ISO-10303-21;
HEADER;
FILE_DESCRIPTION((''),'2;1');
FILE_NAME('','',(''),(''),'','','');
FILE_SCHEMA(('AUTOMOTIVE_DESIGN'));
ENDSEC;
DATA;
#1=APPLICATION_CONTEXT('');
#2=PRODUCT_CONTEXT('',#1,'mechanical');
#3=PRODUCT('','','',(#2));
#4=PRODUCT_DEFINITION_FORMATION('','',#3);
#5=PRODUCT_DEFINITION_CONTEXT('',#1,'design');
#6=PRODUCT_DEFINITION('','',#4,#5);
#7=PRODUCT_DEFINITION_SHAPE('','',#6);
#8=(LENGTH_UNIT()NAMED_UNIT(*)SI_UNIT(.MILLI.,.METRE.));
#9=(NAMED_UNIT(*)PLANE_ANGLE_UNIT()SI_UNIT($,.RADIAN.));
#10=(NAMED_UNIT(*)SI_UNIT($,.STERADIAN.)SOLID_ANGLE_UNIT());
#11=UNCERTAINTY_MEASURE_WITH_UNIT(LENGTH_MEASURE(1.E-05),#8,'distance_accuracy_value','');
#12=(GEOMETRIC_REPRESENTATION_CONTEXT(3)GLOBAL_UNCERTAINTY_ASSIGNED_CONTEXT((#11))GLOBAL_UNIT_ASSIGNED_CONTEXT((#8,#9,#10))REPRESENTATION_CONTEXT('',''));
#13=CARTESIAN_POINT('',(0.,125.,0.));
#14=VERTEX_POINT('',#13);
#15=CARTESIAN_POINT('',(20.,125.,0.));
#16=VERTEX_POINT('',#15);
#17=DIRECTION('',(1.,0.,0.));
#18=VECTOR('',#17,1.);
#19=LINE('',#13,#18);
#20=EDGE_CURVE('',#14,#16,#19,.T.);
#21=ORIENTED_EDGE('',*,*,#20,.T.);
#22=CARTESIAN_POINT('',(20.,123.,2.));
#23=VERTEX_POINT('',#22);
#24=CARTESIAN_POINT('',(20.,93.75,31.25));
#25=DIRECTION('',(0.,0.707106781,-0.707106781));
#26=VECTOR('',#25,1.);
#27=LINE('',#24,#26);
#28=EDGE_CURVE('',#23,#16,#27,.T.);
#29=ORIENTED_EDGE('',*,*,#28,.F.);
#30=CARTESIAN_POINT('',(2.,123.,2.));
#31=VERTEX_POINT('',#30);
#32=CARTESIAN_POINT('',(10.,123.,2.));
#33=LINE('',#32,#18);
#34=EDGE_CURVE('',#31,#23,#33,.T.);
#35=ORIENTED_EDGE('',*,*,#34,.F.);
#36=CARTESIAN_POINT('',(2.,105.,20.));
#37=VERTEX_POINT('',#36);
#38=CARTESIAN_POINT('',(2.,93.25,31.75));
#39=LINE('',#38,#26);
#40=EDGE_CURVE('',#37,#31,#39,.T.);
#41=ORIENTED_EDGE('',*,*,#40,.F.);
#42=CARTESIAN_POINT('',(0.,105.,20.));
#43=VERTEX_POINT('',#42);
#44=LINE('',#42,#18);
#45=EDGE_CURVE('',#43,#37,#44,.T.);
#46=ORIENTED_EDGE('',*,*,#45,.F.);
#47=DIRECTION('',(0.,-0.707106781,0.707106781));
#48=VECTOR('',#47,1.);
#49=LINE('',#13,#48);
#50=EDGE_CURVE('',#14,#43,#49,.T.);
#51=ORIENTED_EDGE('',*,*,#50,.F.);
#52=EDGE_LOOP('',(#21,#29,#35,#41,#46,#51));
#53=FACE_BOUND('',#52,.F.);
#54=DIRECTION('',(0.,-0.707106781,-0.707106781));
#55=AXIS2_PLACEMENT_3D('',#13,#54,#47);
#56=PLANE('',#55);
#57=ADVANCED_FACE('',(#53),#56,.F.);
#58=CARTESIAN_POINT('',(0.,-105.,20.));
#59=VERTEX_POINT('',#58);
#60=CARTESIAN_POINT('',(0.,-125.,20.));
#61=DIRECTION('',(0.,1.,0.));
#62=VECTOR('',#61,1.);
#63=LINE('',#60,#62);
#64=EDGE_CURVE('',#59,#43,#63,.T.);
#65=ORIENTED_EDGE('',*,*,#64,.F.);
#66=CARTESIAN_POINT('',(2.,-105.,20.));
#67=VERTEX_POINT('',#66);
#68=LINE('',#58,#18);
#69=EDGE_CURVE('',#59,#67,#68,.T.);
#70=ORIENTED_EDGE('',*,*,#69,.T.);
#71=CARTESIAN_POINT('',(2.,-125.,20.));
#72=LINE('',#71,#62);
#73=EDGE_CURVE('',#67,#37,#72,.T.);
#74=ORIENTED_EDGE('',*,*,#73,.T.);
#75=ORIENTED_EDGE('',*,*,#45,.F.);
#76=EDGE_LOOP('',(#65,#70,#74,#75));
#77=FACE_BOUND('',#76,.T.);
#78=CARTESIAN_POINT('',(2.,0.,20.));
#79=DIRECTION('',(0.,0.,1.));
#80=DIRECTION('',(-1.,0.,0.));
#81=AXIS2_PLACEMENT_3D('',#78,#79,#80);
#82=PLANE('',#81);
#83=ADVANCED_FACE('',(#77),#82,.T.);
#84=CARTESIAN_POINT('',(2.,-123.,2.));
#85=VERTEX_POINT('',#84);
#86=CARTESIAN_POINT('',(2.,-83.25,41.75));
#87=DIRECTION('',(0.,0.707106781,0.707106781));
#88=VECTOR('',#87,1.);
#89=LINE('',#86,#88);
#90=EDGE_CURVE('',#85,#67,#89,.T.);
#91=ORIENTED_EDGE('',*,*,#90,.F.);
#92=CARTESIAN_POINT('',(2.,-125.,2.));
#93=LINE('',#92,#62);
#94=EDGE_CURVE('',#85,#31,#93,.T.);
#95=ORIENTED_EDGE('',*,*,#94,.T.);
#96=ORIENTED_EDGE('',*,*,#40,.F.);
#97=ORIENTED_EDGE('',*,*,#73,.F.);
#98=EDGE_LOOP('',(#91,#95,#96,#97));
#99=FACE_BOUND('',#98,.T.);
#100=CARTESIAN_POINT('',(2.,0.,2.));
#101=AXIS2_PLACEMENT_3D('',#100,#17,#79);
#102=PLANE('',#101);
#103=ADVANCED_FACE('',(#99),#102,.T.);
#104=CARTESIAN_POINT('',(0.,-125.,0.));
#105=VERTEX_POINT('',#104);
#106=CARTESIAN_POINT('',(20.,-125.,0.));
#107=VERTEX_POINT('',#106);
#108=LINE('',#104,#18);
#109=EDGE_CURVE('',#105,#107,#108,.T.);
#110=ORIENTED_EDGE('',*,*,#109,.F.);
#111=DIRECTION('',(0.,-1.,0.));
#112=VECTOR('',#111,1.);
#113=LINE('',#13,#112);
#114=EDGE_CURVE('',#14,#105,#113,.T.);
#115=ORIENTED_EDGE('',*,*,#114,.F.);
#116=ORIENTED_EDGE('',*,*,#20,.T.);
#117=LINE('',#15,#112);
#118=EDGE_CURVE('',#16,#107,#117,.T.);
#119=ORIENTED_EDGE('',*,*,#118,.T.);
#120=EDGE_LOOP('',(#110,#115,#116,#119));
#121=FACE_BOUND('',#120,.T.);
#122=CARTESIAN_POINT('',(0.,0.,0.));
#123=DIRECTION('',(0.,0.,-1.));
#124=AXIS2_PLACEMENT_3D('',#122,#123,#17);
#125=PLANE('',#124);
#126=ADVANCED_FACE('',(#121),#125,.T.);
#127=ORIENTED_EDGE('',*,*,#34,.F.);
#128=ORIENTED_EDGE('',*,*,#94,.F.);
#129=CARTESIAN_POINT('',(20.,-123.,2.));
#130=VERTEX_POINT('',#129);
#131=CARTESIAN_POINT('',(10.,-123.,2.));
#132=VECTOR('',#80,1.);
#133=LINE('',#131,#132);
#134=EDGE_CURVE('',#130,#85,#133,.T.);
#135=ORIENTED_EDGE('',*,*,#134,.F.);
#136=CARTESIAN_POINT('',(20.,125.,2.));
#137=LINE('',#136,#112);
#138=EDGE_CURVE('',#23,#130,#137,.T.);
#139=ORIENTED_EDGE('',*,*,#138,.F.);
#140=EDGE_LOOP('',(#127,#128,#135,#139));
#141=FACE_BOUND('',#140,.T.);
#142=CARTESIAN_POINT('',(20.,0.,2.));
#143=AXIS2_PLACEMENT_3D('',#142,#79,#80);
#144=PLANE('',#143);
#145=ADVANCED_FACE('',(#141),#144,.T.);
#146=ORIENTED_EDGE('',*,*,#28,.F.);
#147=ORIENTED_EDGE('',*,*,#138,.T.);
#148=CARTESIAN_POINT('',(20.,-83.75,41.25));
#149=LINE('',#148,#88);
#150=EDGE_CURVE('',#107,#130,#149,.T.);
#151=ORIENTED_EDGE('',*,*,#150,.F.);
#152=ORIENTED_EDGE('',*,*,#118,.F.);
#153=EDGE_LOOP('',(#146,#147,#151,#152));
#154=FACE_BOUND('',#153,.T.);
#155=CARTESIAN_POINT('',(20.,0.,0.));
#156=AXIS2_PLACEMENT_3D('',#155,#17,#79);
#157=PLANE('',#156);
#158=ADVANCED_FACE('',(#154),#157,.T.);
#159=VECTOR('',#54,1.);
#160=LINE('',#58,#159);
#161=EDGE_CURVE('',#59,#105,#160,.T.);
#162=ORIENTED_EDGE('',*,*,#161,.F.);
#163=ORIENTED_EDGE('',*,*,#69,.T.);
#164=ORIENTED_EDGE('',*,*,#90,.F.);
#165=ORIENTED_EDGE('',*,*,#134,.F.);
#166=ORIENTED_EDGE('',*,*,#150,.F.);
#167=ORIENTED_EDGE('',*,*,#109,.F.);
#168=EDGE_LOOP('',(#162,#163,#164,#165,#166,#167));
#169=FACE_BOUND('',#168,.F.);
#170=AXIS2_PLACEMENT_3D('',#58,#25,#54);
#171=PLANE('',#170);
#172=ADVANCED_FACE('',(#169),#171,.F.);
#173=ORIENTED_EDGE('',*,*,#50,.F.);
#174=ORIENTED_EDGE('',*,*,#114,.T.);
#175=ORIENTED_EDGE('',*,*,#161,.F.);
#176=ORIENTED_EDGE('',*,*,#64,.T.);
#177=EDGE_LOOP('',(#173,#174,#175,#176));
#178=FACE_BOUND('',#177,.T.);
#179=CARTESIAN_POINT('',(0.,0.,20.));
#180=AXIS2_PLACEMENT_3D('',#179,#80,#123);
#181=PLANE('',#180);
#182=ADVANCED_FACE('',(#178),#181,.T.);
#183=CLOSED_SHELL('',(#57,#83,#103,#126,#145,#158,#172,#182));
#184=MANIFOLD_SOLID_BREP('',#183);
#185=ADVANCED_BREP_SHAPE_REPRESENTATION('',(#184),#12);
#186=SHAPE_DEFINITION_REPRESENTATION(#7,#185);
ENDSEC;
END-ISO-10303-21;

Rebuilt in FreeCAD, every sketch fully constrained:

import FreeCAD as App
import Part
import Sketcher

V = App.Vector


def add_polygon(sketch, points):
    """Adds a closed chain of lines whose ends are joined by coincident constraints."""
    first, n = sketch.GeometryCount, len(points)
    for a, b in zip(points, points[1:] + points[:1]):
        sketch.addGeometry(Part.LineSegment(App.Vector(*a, 0), App.Vector(*b, 0)), False)
    for i in range(n):
        sketch.addConstraint(Sketcher.Constraint("Coincident", first + i, 2, first + (i + 1) % n, 1))

doc = App.newDocument("Part")
body = doc.addObject("PartDesign::Body", "Body")

# Sketch on XZ plane
sketch1 = body.newObject("Sketcher::SketchObject", "Sketch")
sketch1.AttachmentSupport = (doc.getObject("XZ_Plane"), [""])
sketch1.MapMode = "FlatFace"
add_polygon(sketch1, [(0, 20), (0, 0), (20, 0), (20, 2), (2, 2), (2, 20)])  # lines 0-5
sketch1.addConstraint(Sketcher.Constraint("Vertical", 0))
sketch1.addConstraint(Sketcher.Constraint("Horizontal", 1))
sketch1.addConstraint(Sketcher.Constraint("Vertical", 2))
sketch1.addConstraint(Sketcher.Constraint("Horizontal", 3))
sketch1.addConstraint(Sketcher.Constraint("Vertical", 4))
sketch1.addConstraint(Sketcher.Constraint("Horizontal", 5))
sketch1.addConstraint(Sketcher.Constraint("Coincident", 0, 2, -1, 1))
sketch1.addConstraint(Sketcher.Constraint("Equal", 1, 0))
sketch1.addConstraint(Sketcher.Constraint("Equal", 5, 2))
sketch1.addConstraint(Sketcher.Constraint("DistanceX", 1, 1, 1, 2, 20.0))
sketch1.addConstraint(Sketcher.Constraint("DistanceX", 3, 2, 3, 1, 18.0))
pad1 = body.newObject("PartDesign::Pad", "Pad")
pad1.Profile = sketch1
pad1.Length = 250
pad1.Midplane = True

# Sketch on YZ plane
sketch2 = body.newObject("Sketcher::SketchObject", "Sketch001")
sketch2.AttachmentSupport = (doc.getObject("YZ_Plane"), [""])
sketch2.MapMode = "FlatFace"
add_polygon(sketch2, [(125, 20), (125, 0), (105, 20)])  # lines 0-2
add_polygon(sketch2, [(-125, 0), (-125, 20), (-105, 20)])  # lines 3-5
sketch2.addConstraint(Sketcher.Constraint("Vertical", 0))
sketch2.addConstraint(Sketcher.Constraint("Horizontal", 2))
sketch2.addConstraint(Sketcher.Constraint("Vertical", 3))
sketch2.addConstraint(Sketcher.Constraint("Horizontal", 4))
sketch2.addConstraint(Sketcher.Constraint("Symmetric", 0, 2, 5, 2, -1, 1))
sketch2.addConstraint(Sketcher.Constraint("Symmetric", 1, 2, 4, 2, -2))
sketch2.addConstraint(Sketcher.Constraint("PointOnObject", 0, 2, -1))
sketch2.addConstraint(Sketcher.Constraint("Perpendicular", 1, 5))
sketch2.addConstraint(Sketcher.Constraint("DistanceX", 2, 1, 2, 2, 20.0))
sketch2.addConstraint(Sketcher.Constraint("DistanceX", -1, 1, 0, 2, 125.0))
pocket1 = body.newObject("PartDesign::Pocket", "Pocket")
pocket1.Profile = sketch2
pocket1.Type = "ThroughAll"
pocket1.Reversed = True

doc.recompute()
